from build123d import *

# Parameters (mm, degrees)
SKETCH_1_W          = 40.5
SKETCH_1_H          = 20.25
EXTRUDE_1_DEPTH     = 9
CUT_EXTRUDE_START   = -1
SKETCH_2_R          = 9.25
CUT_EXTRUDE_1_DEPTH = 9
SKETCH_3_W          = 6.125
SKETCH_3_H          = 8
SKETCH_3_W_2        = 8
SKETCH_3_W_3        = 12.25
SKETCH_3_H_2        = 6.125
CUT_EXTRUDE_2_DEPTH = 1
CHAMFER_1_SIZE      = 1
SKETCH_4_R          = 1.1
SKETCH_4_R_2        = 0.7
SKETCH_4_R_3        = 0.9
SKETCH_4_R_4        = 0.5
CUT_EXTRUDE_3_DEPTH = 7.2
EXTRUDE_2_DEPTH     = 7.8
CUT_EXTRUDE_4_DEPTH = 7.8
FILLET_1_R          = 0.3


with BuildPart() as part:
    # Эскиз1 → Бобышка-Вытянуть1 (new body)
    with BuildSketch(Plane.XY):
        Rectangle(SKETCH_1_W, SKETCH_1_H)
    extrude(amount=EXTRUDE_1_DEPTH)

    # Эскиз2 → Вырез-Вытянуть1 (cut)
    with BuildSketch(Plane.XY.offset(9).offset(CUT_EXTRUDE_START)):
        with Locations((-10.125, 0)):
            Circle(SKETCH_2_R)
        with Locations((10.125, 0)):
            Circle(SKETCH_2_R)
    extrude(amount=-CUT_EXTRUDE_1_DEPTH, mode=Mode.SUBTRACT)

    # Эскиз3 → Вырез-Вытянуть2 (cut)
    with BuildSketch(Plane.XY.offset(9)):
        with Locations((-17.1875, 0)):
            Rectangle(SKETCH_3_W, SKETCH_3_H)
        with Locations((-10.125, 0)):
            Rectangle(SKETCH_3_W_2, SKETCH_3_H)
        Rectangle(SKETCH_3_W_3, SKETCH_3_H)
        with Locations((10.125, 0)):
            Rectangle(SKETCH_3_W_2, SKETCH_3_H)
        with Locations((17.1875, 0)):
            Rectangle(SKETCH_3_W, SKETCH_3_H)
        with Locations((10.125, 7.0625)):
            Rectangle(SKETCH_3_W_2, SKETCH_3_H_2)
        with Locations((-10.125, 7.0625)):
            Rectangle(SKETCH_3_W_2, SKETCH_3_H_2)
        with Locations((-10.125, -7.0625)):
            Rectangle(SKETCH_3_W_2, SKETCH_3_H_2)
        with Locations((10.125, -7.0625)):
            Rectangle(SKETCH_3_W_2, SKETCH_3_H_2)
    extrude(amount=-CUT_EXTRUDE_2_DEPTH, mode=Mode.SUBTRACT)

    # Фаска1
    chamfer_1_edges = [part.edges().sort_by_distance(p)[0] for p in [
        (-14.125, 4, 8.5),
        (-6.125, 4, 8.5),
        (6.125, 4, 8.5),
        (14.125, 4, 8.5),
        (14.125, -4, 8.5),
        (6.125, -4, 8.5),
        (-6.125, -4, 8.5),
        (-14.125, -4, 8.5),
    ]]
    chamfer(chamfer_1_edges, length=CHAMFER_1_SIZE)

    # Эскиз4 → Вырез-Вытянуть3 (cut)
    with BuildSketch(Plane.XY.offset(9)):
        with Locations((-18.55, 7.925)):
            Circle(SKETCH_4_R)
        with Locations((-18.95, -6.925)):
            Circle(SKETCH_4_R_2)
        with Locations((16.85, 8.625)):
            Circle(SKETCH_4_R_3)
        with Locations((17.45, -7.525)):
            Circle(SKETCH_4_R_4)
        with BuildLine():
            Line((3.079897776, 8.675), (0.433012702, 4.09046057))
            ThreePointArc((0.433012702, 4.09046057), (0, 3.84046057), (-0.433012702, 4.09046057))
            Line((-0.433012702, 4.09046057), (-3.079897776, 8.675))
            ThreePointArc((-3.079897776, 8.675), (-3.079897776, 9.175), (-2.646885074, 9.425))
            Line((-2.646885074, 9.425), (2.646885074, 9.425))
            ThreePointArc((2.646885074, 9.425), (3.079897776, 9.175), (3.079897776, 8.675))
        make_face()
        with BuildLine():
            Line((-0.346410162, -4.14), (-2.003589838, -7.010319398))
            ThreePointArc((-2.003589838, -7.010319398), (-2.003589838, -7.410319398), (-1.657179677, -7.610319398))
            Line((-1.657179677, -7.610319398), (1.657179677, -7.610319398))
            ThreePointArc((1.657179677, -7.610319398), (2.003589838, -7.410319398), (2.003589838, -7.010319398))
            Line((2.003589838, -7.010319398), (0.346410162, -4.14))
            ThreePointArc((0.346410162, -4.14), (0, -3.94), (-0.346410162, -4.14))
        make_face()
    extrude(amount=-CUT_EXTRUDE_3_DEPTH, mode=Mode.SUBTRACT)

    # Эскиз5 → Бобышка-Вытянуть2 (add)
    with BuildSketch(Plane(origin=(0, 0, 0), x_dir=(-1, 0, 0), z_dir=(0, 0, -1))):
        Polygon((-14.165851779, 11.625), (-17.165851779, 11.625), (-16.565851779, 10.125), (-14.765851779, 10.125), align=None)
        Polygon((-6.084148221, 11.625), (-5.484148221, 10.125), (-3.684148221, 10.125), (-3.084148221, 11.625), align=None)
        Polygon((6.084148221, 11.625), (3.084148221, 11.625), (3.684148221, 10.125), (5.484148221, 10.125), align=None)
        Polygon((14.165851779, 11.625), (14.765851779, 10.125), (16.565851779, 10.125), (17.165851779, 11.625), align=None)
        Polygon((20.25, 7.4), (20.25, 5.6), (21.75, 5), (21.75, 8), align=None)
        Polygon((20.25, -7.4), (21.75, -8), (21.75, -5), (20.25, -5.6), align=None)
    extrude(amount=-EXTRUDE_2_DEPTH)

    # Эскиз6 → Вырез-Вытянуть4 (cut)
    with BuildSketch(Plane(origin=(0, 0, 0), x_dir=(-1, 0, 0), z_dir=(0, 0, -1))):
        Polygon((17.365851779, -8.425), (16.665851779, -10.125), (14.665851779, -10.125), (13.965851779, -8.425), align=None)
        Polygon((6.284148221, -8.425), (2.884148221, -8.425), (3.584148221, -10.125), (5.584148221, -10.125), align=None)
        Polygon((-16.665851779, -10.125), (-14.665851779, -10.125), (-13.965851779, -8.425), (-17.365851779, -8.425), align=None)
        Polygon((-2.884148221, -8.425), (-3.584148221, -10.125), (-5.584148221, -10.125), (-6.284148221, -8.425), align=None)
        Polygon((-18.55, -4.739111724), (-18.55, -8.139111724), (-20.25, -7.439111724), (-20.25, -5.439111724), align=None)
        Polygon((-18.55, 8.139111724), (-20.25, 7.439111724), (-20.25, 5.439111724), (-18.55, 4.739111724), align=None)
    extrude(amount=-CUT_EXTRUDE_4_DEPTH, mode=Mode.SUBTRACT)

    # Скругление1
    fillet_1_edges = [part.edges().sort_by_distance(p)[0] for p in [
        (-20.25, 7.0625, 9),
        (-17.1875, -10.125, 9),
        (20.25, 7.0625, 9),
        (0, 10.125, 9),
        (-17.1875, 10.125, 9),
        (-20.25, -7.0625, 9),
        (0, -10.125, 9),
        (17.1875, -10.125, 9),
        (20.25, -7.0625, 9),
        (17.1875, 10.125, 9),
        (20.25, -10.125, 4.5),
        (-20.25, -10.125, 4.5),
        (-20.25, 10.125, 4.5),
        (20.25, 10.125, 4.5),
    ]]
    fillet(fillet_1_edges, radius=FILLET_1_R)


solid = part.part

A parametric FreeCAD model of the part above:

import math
import FreeCAD as App
import Part
import Sketcher
Q = App.Units.Quantity


def edges_at(feature, points):
    """Names of the edges that pass closest to the given points."""
    edges = feature.Shape.Edges
    near = lambda p: min(range(len(edges)), key=lambda i: edges[i].distToShape(Part.Vertex(*p))[0])
    return sorted({f"Edge{near(p) + 1}" for p in points})


def add_polygon(sketch, points):
    """Adds a closed chain of lines whose ends are joined by coincident constraints."""
    first, n = sketch.GeometryCount, len(points)
    for a, b in zip(points, points[1:] + points[:1]):
        sketch.addGeometry(Part.LineSegment(App.Vector(*a, 0), App.Vector(*b, 0)), False)
    for i in range(n):
        sketch.addConstraint(Sketcher.Constraint("Coincident", first + i, 2, first + (i + 1) % n, 1))

doc = App.newDocument("Part")
body = doc.addObject("PartDesign::Body", "Body")

# Sketch on XY plane
sketch1 = body.newObject("Sketcher::SketchObject", "Sketch")
sketch1.AttachmentSupport = (doc.getObject("XY_Plane"), [""])
sketch1.MapMode = "FlatFace"
add_polygon(sketch1, [(-20, 10), (-20, -10), (20, -10), (20, 10)])  # lines 0-3
sketch1.addConstraint([
    Sketcher.Constraint("Vertical", 0),
    Sketcher.Constraint("Horizontal", 1),
    Sketcher.Constraint("Vertical", 2),
    Sketcher.Constraint("Horizontal", 3),
    Sketcher.Constraint("Symmetric", 0, 2, 2, 2, -1, 1),
    Sketcher.Constraint("DistanceX", 1, 1, 1, 2, Q("40.5 mm")),
    Sketcher.Constraint("DistanceY", 0, 2, 0, 1, Q("20.25 mm")),
])
pad1 = body.newObject("PartDesign::Pad", "Pad")
pad1.Profile = sketch1
pad1.Length = 9

# Sketch on XY plane
sketch2 = body.newObject("Sketcher::SketchObject", "Sketch001")
sketch2.AttachmentSupport = (doc.getObject("XY_Plane"), [""])
sketch2.MapMode = "FlatFace"
sketch2.AttachmentOffset = App.Placement(App.Vector(0, 0, 8), App.Rotation())
sketch2.addGeometry([
    Part.Circle(App.Vector(-10, 0, 0), App.Vector(0, 0, 1), 9),
    Part.Circle(App.Vector(10, 0, 0), App.Vector(0, 0, 1), 9),
], False)
sketch2.addConstraint([
    Sketcher.Constraint("Equal", 0, 1),
    Sketcher.Constraint("Symmetric", 0, 3, 1, 3, -1, 1),
    Sketcher.Constraint("PointOnObject", 0, 3, -1),
    Sketcher.Constraint("Diameter", 0, Q("18.5 mm")),
    Sketcher.Constraint("DistanceX", 0, 3, 1, 3, Q("20.25 mm")),
])
pocket1 = body.newObject("PartDesign::Pocket", "Pocket")
pocket1.Profile = sketch2
pocket1.Length = 9

# Sketch on XY plane
sketch3 = body.newObject("Sketcher::SketchObject", "Sketch002")
sketch3.AttachmentSupport = (doc.getObject("XY_Plane"), [""])
sketch3.MapMode = "FlatFace"
sketch3.AttachmentOffset = App.Placement(App.Vector(0, 0, 9), App.Rotation())
add_polygon(sketch3, [(-20, 4), (-20, -4), (-14, -4), (-14, -10), (-6, -10), (-6, -4), (6, -4), (6, -10), (14, -10), (14, -4), (20, -4), (20, 4), (14, 4), (14, 10), (6, 10), (6, 4), (-6, 4), (-6, 10), (-14, 10), (-14, 4)])  # lines 0-19
sketch3.addConstraint([
    Sketcher.Constraint("Vertical", 0),
    Sketcher.Constraint("Horizontal", 1),
    Sketcher.Constraint("Vertical", 2),
    Sketcher.Constraint("Horizontal", 3),
    Sketcher.Constraint("Vertical", 4),
    Sketcher.Constraint("Horizontal", 5),
    Sketcher.Constraint("Vertical", 6),
    Sketcher.Constraint("Horizontal", 7),
    Sketcher.Constraint("Vertical", 8),
    Sketcher.Constraint("Horizontal", 9),
    Sketcher.Constraint("Vertical", 10),
    Sketcher.Constraint("Horizontal", 11),
    Sketcher.Constraint("Vertical", 12),
    Sketcher.Constraint("Horizontal", 13),
    Sketcher.Constraint("Vertical", 14),
    Sketcher.Constraint("Horizontal", 15),
    Sketcher.Constraint("Vertical", 16),
    Sketcher.Constraint("Horizontal", 17),
    Sketcher.Constraint("Vertical", 18),
    Sketcher.Constraint("Horizontal", 19),
    Sketcher.Constraint("Symmetric", 0, 2, 10, 2, -1, 1),
    Sketcher.Constraint("Symmetric", 2, 2, 12, 2, -1, 1),
    Sketcher.Constraint("Symmetric", 4, 2, 14, 2, -1, 1),
    Sketcher.Constraint("Symmetric", 6, 2, 16, 2, -1, 1),
    Sketcher.Constraint("Symmetric", 8, 2, 18, 2, -1, 1),
    Sketcher.Constraint("Symmetric", 3, 2, 6, 2, -2),
    Sketcher.Constraint("Symmetric", 1, 2, 8, 2, -2),
    Sketcher.Constraint("Horizontal", 1, 2, 4, 2),
    Sketcher.Constraint("Equal", 17, 0),
    Sketcher.Constraint("Equal", 19, 2),
    Sketcher.Constraint("DistanceX", 3, 1, 3, 2, Q("8 mm")),
    Sketcher.Constraint("DistanceX", 5, 1, 5, 2, Q("12.25 mm")),
    Sketcher.Constraint("DistanceX", 1, 1, 1, 2, Q("6.125 mm")),
])
pocket2 = body.newObject("PartDesign::Pocket", "Pocket001")
pocket2.Profile = sketch3
pocket2.Length = 1
doc.recompute()

chamfer = body.newObject("PartDesign::Chamfer", "Chamfer")
chamfer.Base = (pocket2, edges_at(pocket2, [
    (-14.125, 4, 8.5),
    (-6.125, 4, 8.5),
    (6.125, 4, 8.5),
    (14.125, 4, 8.5),
    (14.125, -4, 8.5),
    (6.125, -4, 8.5),
    (-6.125, -4, 8.5),
    (-14.125, -4, 8.5),
]))
chamfer.Size = 1

# Sketch on XY plane
sketch4 = body.newObject("Sketcher::SketchObject", "Sketch003")
sketch4.AttachmentSupport = (doc.getObject("XY_Plane"), [""])
sketch4.MapMode = "FlatFace"
sketch4.AttachmentOffset = App.Placement(App.Vector(0, 0, 9), App.Rotation())
sketch4.addGeometry([
    Part.Circle(App.Vector(-18.55, 7.92, 0), App.Vector(0, 0, 1), 1.1),  # 0
    Part.Circle(App.Vector(-18.95, -6.92, 0), App.Vector(0, 0, 1), 0.7),  # 1
    Part.Circle(App.Vector(16.85, 8.62, 0), App.Vector(0, 0, 1), 0.9),  # 2
    Part.Circle(App.Vector(17.45, -7.53, 0), App.Vector(0, 0, 1), 0.5),  # 3
    Part.LineSegment(App.Vector(0.43, 4.09, 0), App.Vector(3.08, 8.68, 0)),  # 4
    Part.ArcOfCircle(Part.Circle(App.Vector(2.65, 8.93, 0), App.Vector(0, 0, 1), 0.5), math.radians(-30), math.radians(90)),  # 5
    Part.LineSegment(App.Vector(2.65, 9.43, 0), App.Vector(-2.65, 9.43, 0)),  # 6
    Part.ArcOfCircle(Part.Circle(App.Vector(-2.65, 8.93, 0), App.Vector(0, 0, 1), 0.5), math.radians(90), math.radians(210)),  # 7
    Part.LineSegment(App.Vector(-3.08, 8.68, 0), App.Vector(-0.43, 4.09, 0)),  # 8
    Part.ArcOfCircle(Part.Circle(App.Vector(0, 4.34, 0), App.Vector(0, 0, 1), 0.5), math.radians(-150), math.radians(-30)),  # 9
    Part.LineSegment(App.Vector(-0.35, -4.14, 0), App.Vector(-2, -7.01, 0)),  # 10
    Part.ArcOfCircle(Part.Circle(App.Vector(-1.66, -7.21, 0), App.Vector(0, 0, 1), 0.4), math.radians(150), math.radians(270)),  # 11
    Part.LineSegment(App.Vector(-1.66, -7.61, 0), App.Vector(1.66, -7.61, 0)),  # 12
    Part.ArcOfCircle(Part.Circle(App.Vector(1.66, -7.21, 0), App.Vector(0, 0, 1), 0.4), math.radians(-90), math.radians(30)),  # 13
    Part.LineSegment(App.Vector(2, -7.01, 0), App.Vector(0.35, -4.14, 0)),  # 14
    Part.ArcOfCircle(Part.Circle(App.Vector(0, -4.34, 0), App.Vector(0, 0, 1), 0.4), math.radians(30), math.radians(150)),  # 15
], False)
sketch4.addConstraint([
    Sketcher.Constraint("Tangent", 4, 2, 5, 1),
    Sketcher.Constraint("Tangent", 5, 2, 6, 1),
    Sketcher.Constraint("Tangent", 6, 2, 7, 1),
    Sketcher.Constraint("Tangent", 7, 2, 8, 1),
    Sketcher.Constraint("Tangent", 8, 2, 9, 1),
    Sketcher.Constraint("Tangent", 9, 2, 4, 1),
    Sketcher.Constraint("Tangent", 10, 2, 11, 1),
    Sketcher.Constraint("Tangent", 11, 2, 12, 1),
    Sketcher.Constraint("Tangent", 12, 2, 13, 1),
    Sketcher.Constraint("Tangent", 13, 2, 14, 1),
    Sketcher.Constraint("Tangent", 14, 2, 15, 1),
    Sketcher.Constraint("Tangent", 15, 2, 10, 1),
    Sketcher.Constraint("Horizontal", 6),
    Sketcher.Constraint("Horizontal", 12),
    Sketcher.Constraint("Equal", 3, 5),
    Sketcher.Constraint("Equal", 5, 7),
    Sketcher.Constraint("Equal", 7, 9),
    Sketcher.Constraint("Equal", 11, 13),
    Sketcher.Constraint("Equal", 13, 15),
    Sketcher.Constraint("Symmetric", 4, 2, 7, 2, -2),
    Sketcher.Constraint("Symmetric", 10, 2, 13, 2, -2),
    Sketcher.Constraint("Parallel", 4, 10),
    Sketcher.Constraint("Diameter", 3, Q("1 mm")),
    Sketcher.Constraint("Diameter", 0, Q("2.2 mm")),
    Sketcher.Constraint("Diameter", 1, Q("1.4 mm")),
    Sketcher.Constraint("Diameter", 2, Q("1.8 mm")),
    Sketcher.Constraint("Radius", 11, Q("0.4 mm")),
    Sketcher.Constraint("Angle", 4, Q("60 deg")),
    Sketcher.Constraint("DistanceX", 0, 3, 3, 3, Q("36 mm")),
    Sketcher.Constraint("DistanceY", 0, 3, 5, 3, Q("1 mm")),
    Sketcher.Constraint("DistanceX", 1, 3, 0, 3, Q("0.4 mm")),
    Sketcher.Constraint("DistanceX", 0, 3, 2, 3, Q("35.4 mm")),
    Sketcher.Constraint("DistanceY", 0, 3, 2, 3, Q("0.7 mm")),
    Sketcher.Constraint("DistanceY", 3, 3, 1, 3, Q("0.6 mm")),
    Sketcher.Constraint("DistanceX", 0, 3, -1, 1, Q("18.55 mm")),
    Sketcher.Constraint("DistanceY", 15, 3, -1, 1, Q("4.34 mm")),
    Sketcher.Constraint("DistanceY", 1, 3, 0, 3, Q("14.85 mm")),
    Sketcher.Constraint("DistanceY", -1, 1, 0, 3, Q("7.925 mm")),
    Sketcher.Constraint("DistanceX", 6, 2, 6, 1, Q("5.29377 mm")),
    Sketcher.Constraint("DistanceX", 12, 1, 12, 2, Q("3.314359 mm")),
])
pocket3 = body.newObject("PartDesign::Pocket", "Pocket002")
pocket3.Profile = sketch4
pocket3.Length = 7.2

# Sketch on XY plane
sketch5 = body.newObject("Sketcher::SketchObject", "Sketch004")
sketch5.AttachmentSupport = (doc.getObject("XY_Plane"), [""])
sketch5.MapMode = "FlatFace"
add_polygon(sketch5, [(14.2, 11.6), (17.2, 11.6), (16.6, 10.1), (14.8, 10.1)])  # lines 0-3
add_polygon(sketch5, [(6.1, 11.6), (5.5, 10.1), (3.7, 10.1), (3.1, 11.6)])  # lines 4-7
add_polygon(sketch5, [(-6.1, 11.6), (-3.1, 11.6), (-3.7, 10.1), (-5.5, 10.1)])  # lines 8-11
add_polygon(sketch5, [(-14.2, 11.6), (-14.8, 10.1), (-16.6, 10.1), (-17.2, 11.6)])  # lines 12-15
add_polygon(sketch5, [(-20.2, 7.4), (-20.2, 5.6), (-21.8, 5), (-21.8, 8)])  # lines 16-19
add_polygon(sketch5, [(-20.2, -7.4), (-21.8, -8), (-21.8, -5), (-20.2, -5.6)])  # lines 20-23
sketch5.addConstraint([
    Sketcher.Constraint("Horizontal", 0),
    Sketcher.Constraint("Horizontal", 2),
    Sketcher.Constraint("Horizontal", 5),
    Sketcher.Constraint("Horizontal", 7),
    Sketcher.Constraint("Horizontal", 8),
    Sketcher.Constraint("Horizontal", 10),
    Sketcher.Constraint("Horizontal", 13),
    Sketcher.Constraint("Horizontal", 15),
    Sketcher.Constraint("Vertical", 16),
    Sketcher.Constraint("Vertical", 18),
    Sketcher.Constraint("Vertical", 21),
    Sketcher.Constraint("Vertical", 23),
    Sketcher.Constraint("Symmetric", 6, 2, 8, 2, -2),
    Sketcher.Constraint("Symmetric", 5, 2, 9, 2, -2),
    Sketcher.Constraint("Symmetric", 2, 2, 12, 2, -2),
    Sketcher.Constraint("Symmetric", 0, 2, 14, 2, -2),
    Sketcher.Constraint("Symmetric", 18, 2, 20, 2, -1),
    Sketcher.Constraint("Symmetric", 16, 2, 22, 2, -1),
    Sketcher.Constraint("Parallel", 1, 4),
    Sketcher.Constraint("Parallel", 3, 6),
    Sketcher.Constraint("Parallel", 4, 9),
    Sketcher.Constraint("Parallel", 6, 11),
    Sketcher.Constraint("Parallel", 9, 12),
    Sketcher.Constraint("Parallel", 11, 14),
    Sketcher.Constraint("Perpendicular", 14, 17),
    Sketcher.Constraint("Perpendicular", 12, 19),
    Sketcher.Constraint("Parallel", 17, 20),
    Sketcher.Constraint("Parallel", 19, 22),
    Sketcher.Constraint("Horizontal", 2, 2, 4, 2),
    Sketcher.Constraint("Horizontal", 3, 2, 6, 2),
    Sketcher.Constraint("Equal", 2, 5),
    Sketcher.Constraint("Equal", 7, 8),
    Sketcher.Constraint("Equal", 13, 16),
    Sketcher.Constraint("Equal", 15, 18),
    Sketcher.Constraint("DistanceX", 0, 1, 0, 2, Q("3 mm")),
    Sketcher.Constraint("DistanceX", 2, 2, 2, 1, Q("1.8 mm")),
    Sketcher.Constraint("DistanceY", -1, 1, 17, 2, Q("5 mm")),
    Sketcher.Constraint("DistanceY", 1, 2, 0, 2, Q("1.5 mm")),
    Sketcher.Constraint("DistanceX", 16, 2, -1, 1, Q("20.25 mm")),
    Sketcher.Constraint("DistanceX", 8, 2, 3, 2, Q("17.25 mm")),
    Sketcher.Constraint("DistanceY", -1, 1, 0, 2, Q("11.625 mm")),
    Sketcher.Constraint("DistanceX", -1, 1, 0, 2, Q("17.165852 mm")),
])
pad2 = body.newObject("PartDesign::Pad", "Pad001")
pad2.Profile = sketch5
pad2.Length = 7.8

# Sketch on XY plane
sketch6 = body.newObject("Sketcher::SketchObject", "Sketch005")
sketch6.AttachmentSupport = (doc.getObject("XY_Plane"), [""])
sketch6.MapMode = "FlatFace"
add_polygon(sketch6, [(-16.7, -10.1), (-17.4, -8.4), (-14, -8.4), (-14.7, -10.1)])  # lines 0-3
add_polygon(sketch6, [(-6.3, -8.4), (-2.9, -8.4), (-3.6, -10.1), (-5.6, -10.1)])  # lines 4-7
add_polygon(sketch6, [(16.7, -10.1), (14.7, -10.1), (14, -8.4), (17.4, -8.4)])  # lines 8-11
add_polygon(sketch6, [(3.6, -10.1), (2.9, -8.4), (6.3, -8.4), (5.6, -10.1)])  # lines 12-15
add_polygon(sketch6, [(18.6, -8.1), (18.6, -4.7), (20.2, -5.4), (20.2, -7.4)])  # lines 16-19
add_polygon(sketch6, [(18.6, 8.1), (20.2, 7.4), (20.2, 5.4), (18.6, 4.7)])  # lines 20-23
sketch6.addConstraint([
    Sketcher.Constraint("Horizontal", 1),
    Sketcher.Constraint("Horizontal", 3),
    Sketcher.Constraint("Horizontal", 4),
    Sketcher.Constraint("Horizontal", 6),
    Sketcher.Constraint("Horizontal", 8),
    Sketcher.Constraint("Horizontal", 10),
    Sketcher.Constraint("Horizontal", 13),
    Sketcher.Constraint("Horizontal", 15),
    Sketcher.Constraint("Vertical", 16),
    Sketcher.Constraint("Vertical", 18),
    Sketcher.Constraint("Vertical", 21),
    Sketcher.Constraint("Vertical", 23),
    Sketcher.Constraint("Symmetric", 2, 2, 8, 2, -2),
    Sketcher.Constraint("Symmetric", 1, 2, 9, 2, -2),
    Sketcher.Constraint("Symmetric", 4, 2, 12, 2, -2),
    Sketcher.Constraint("Symmetric", 6, 2, 14, 2, -2),
    Sketcher.Constraint("Symmetric", 18, 2, 20, 2, -1),
    Sketcher.Constraint("Symmetric", 16, 2, 22, 2, -1),
    Sketcher.Constraint("Parallel", 2, 5),
    Sketcher.Constraint("Parallel", 0, 7),
    Sketcher.Constraint("Parallel", 7, 9),
    Sketcher.Constraint("Parallel", 5, 11),
    Sketcher.Constraint("Parallel", 9, 12),
    Sketcher.Constraint("Parallel", 11, 14),
    Sketcher.Constraint("Perpendicular", 14, 17),
    Sketcher.Constraint("Perpendicular", 12, 19),
    Sketcher.Constraint("Parallel", 17, 20),
    Sketcher.Constraint("Parallel", 19, 22),
    Sketcher.Constraint("Horizontal", 1, 2, 4, 2),
    Sketcher.Constraint("Horizontal", 3, 2, 5, 2),
    Sketcher.Constraint("Equal", 1, 4),
    Sketcher.Constraint("Equal", 6, 8),
    Sketcher.Constraint("Equal", 13, 16),
    Sketcher.Constraint("Equal", 15, 18),
    Sketcher.Constraint("DistanceX", 3, 2, 3, 1, Q("2 mm")),
    Sketcher.Constraint("DistanceX", 1, 1, 1, 2, Q("3.4 mm")),
    Sketcher.Constraint("DistanceY", 2, 2, 1, 2, Q("1.7 mm")),
    Sketcher.Constraint("DistanceX", -1, 1, 16, 2, Q("18.55 mm")),
    Sketcher.Constraint("DistanceX", 4, 2, 8, 2, Q("17.55 mm")),
    Sketcher.Constraint("DistanceY", 0, 2, -1, 1, Q("8.425 mm")),
    Sketcher.Constraint("DistanceX", 0, 2, -1, 1, Q("17.365852 mm")),
    Sketcher.Constraint("DistanceY", 16, 2, -1, 1, Q("4.739112 mm")),
])
pocket4 = body.newObject("PartDesign::Pocket", "Pocket003")
pocket4.Profile = sketch6
pocket4.Length = 7.8
pocket4.Reversed = True
doc.recompute()

fillet = body.newObject("PartDesign::Fillet", "Fillet")
fillet.Base = (pocket4, edges_at(pocket4, [
    (-20.25, 7.062, 9),
    (-17.188, -10.125, 9),
    (20.25, 7.062, 9),
    (0, 10.125, 9),
    (-17.188, 10.125, 9),
    (-20.25, -7.062, 9),
    (0, -10.125, 9),
    (17.188, -10.125, 9),
    (20.25, -7.062, 9),
    (17.188, 10.125, 9),
    (20.25, -10.125, 4.5),
    (-20.25, -10.125, 4.5),
    (-20.25, 10.125, 4.5),
    (20.25, 10.125, 4.5),
]))
fillet.Radius = 0.3

doc.recompute()
